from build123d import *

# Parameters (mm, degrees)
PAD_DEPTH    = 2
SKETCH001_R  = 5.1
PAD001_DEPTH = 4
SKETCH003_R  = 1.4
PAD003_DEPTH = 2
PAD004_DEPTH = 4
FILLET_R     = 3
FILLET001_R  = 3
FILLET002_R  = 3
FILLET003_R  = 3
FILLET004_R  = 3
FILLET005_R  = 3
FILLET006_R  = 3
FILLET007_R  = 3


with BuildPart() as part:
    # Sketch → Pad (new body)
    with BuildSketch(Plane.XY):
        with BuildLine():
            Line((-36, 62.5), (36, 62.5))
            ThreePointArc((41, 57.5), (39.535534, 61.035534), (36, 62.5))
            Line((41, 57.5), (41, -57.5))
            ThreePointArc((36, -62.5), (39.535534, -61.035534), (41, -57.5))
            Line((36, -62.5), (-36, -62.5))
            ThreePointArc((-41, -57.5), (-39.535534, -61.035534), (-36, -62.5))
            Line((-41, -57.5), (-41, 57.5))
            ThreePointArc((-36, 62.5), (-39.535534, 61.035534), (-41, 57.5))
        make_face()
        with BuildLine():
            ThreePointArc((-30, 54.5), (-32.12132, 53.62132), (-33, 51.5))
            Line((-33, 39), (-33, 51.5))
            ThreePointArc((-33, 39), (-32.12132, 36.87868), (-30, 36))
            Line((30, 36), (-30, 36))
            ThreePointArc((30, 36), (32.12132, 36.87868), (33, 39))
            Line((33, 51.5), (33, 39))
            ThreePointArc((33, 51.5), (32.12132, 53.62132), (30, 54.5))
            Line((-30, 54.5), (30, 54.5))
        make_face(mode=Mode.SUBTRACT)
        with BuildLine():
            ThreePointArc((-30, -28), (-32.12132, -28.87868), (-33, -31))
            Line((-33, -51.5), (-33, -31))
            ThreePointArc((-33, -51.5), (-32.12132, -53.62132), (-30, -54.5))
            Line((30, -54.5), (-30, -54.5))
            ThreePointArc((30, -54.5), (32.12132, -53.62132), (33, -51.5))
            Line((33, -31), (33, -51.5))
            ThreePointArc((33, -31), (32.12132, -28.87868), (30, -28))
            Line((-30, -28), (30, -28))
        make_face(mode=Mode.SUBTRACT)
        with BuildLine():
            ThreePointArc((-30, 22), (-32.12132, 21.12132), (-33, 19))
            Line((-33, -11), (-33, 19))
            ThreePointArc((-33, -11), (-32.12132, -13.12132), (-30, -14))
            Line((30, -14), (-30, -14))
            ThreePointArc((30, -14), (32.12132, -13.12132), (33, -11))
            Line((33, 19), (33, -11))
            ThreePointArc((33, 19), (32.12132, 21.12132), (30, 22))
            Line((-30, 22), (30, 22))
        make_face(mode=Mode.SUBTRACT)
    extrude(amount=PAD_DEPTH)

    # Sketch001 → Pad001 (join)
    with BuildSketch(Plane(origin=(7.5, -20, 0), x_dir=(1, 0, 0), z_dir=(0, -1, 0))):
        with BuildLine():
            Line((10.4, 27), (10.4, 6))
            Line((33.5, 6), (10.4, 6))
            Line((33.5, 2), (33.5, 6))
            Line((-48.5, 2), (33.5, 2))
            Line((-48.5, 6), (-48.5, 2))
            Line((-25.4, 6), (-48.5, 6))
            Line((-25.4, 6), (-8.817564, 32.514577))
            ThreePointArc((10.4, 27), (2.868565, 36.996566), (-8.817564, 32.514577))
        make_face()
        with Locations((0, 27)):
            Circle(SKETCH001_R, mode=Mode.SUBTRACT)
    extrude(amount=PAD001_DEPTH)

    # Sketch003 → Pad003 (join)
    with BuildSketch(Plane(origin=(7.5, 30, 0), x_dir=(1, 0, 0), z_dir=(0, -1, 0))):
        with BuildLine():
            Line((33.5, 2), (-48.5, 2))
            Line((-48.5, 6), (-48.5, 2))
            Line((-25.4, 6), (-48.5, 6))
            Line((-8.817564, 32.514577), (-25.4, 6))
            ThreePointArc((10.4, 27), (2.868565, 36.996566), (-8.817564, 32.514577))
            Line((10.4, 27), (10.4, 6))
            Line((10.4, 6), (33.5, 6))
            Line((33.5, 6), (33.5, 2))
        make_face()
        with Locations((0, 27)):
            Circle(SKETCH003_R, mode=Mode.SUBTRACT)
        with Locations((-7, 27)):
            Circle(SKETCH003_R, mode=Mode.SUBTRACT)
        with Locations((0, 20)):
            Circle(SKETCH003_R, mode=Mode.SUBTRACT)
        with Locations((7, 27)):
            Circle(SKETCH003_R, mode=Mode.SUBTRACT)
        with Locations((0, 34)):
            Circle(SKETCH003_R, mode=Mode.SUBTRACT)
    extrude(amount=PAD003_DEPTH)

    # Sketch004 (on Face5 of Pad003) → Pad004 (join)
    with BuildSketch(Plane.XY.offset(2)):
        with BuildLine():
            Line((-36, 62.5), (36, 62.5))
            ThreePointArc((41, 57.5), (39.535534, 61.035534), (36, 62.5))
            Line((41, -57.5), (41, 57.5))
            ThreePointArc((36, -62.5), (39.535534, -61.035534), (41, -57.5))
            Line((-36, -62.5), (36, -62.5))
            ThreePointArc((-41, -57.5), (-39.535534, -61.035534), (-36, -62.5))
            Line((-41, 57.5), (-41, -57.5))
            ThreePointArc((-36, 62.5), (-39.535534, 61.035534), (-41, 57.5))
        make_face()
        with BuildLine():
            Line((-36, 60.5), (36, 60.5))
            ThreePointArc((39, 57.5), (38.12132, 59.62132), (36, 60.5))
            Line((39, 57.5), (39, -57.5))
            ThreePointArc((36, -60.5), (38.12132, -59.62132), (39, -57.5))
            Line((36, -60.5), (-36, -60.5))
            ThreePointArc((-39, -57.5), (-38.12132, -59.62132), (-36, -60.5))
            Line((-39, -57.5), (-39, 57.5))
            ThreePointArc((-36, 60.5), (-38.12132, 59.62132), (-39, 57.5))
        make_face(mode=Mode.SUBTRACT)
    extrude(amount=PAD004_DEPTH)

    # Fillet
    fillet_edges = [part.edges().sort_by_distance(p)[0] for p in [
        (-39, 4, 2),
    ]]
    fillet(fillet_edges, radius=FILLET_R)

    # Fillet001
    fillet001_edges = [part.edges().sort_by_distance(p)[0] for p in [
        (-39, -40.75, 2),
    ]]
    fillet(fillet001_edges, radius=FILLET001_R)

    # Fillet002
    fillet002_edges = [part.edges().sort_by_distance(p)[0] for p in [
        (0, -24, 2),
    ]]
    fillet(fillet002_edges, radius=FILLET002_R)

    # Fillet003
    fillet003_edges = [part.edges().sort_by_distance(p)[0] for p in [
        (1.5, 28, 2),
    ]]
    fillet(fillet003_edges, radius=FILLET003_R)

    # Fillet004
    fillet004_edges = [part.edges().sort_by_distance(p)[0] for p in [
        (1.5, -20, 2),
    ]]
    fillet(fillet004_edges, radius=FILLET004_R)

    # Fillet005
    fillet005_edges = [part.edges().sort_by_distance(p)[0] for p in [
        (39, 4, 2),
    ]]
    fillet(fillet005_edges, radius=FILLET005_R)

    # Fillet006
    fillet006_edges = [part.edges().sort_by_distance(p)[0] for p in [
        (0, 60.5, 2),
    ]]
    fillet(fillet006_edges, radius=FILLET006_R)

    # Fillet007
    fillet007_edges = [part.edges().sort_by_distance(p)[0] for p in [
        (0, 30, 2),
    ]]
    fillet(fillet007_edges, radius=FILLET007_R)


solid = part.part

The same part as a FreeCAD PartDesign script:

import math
import FreeCAD as App
import Part
import Sketcher
from FreeCAD import Vector


def edges_at(feature, points):
    """Names of the edges that pass closest to the given points."""
    edges = feature.Shape.Edges
    near = lambda p: min(range(len(edges)), key=lambda i: edges[i].distToShape(Part.Vertex(*p))[0])
    return sorted({f"Edge{near(p) + 1}" for p in points})

doc = App.newDocument("Part")
body = doc.addObject("PartDesign::Body", "Body")

sketch1 = body.newObject("Sketcher::SketchObject", "Sketch")
sketch1.AttachmentSupport = (doc.getObject("XY_Plane"), [""])
sketch1.MapMode = "FlatFace"
sketch1.addGeometry([
    Part.LineSegment(Vector(36, 62.5, 0), Vector(-36, 62.5, 0)),
    Part.ArcOfCircle(Part.Circle(Vector(-36, 57.5, 0), Vector(0, 0, 1), 5), math.radians(90), math.radians(180)),
    Part.LineSegment(Vector(-41, 57.5, 0), Vector(-41, -57.5, 0)),
    Part.ArcOfCircle(Part.Circle(Vector(-36, -57.5, 0), Vector(0, 0, 1), 5), math.radians(180), math.radians(270)),
    Part.LineSegment(Vector(-36, -62.5, 0), Vector(36, -62.5, 0)),
    Part.ArcOfCircle(Part.Circle(Vector(36, -57.5, 0), Vector(0, 0, 1), 5), math.radians(-90), math.radians(0)),
    Part.LineSegment(Vector(41, -57.5, 0), Vector(41, 57.5, 0)),
    Part.ArcOfCircle(Part.Circle(Vector(36, 57.5, 0), Vector(0, 0, 1), 5), math.radians(0), math.radians(90)),
    Part.LineSegment(Vector(-30, -28, 0), Vector(30, -28, 0)),
    Part.ArcOfCircle(Part.Circle(Vector(30, -31, 0), Vector(0, 0, 1), 3), math.radians(0), math.radians(90)),
    Part.LineSegment(Vector(33, -31, 0), Vector(33, -51.5, 0)),
    Part.ArcOfCircle(Part.Circle(Vector(30, -51.5, 0), Vector(0, 0, 1), 3), math.radians(-90), math.radians(0)),
    Part.LineSegment(Vector(30, -54.5, 0), Vector(-30, -54.5, 0)),
    Part.ArcOfCircle(Part.Circle(Vector(-30, -51.5, 0), Vector(0, 0, 1), 3), math.radians(-180), math.radians(-90)),
    Part.LineSegment(Vector(-33, -51.5, 0), Vector(-33, -31, 0)),
    Part.ArcOfCircle(Part.Circle(Vector(-30, -31, 0), Vector(0, 0, 1), 3), math.radians(90), math.radians(180)),
    Part.LineSegment(Vector(-30, 22, 0), Vector(30, 22, 0)),
    Part.ArcOfCircle(Part.Circle(Vector(30, 19, 0), Vector(0, 0, 1), 3), math.radians(0), math.radians(90)),
    Part.LineSegment(Vector(33, 19, 0), Vector(33, -11, 0)),
    Part.ArcOfCircle(Part.Circle(Vector(30, -11, 0), Vector(0, 0, 1), 3), math.radians(-90), math.radians(0)),
    Part.LineSegment(Vector(30, -14, 0), Vector(-30, -14, 0)),
    Part.ArcOfCircle(Part.Circle(Vector(-30, -11, 0), Vector(0, 0, 1), 3), math.radians(-180), math.radians(-90)),
    Part.LineSegment(Vector(-33, -11, 0), Vector(-33, 19, 0)),
    Part.ArcOfCircle(Part.Circle(Vector(-30, 19, 0), Vector(0, 0, 1), 3), math.radians(90), math.radians(180)),
    Part.LineSegment(Vector(-30, 54.5, 0), Vector(30, 54.5, 0)),
    Part.ArcOfCircle(Part.Circle(Vector(30, 51.5, 0), Vector(0, 0, 1), 3), math.radians(0), math.radians(90)),
    Part.LineSegment(Vector(33, 51.5, 0), Vector(33, 39, 0)),
    Part.ArcOfCircle(Part.Circle(Vector(30, 39, 0), Vector(0, 0, 1), 3), math.radians(-90), math.radians(0)),
    Part.LineSegment(Vector(30, 36, 0), Vector(-30, 36, 0)),
    Part.ArcOfCircle(Part.Circle(Vector(-30, 39, 0), Vector(0, 0, 1), 3), math.radians(-180), math.radians(-90)),
    Part.LineSegment(Vector(-33, 39, 0), Vector(-33, 51.5, 0)),
    Part.ArcOfCircle(Part.Circle(Vector(-30, 51.5, 0), Vector(0, 0, 1), 3), math.radians(90), math.radians(180)),
], False)
sketch1.addConstraint([
    Sketcher.Constraint("Tangent", 0, 2, 1, 1),
    Sketcher.Constraint("Tangent", 1, 2, 2, 1),
    Sketcher.Constraint("Tangent", 2, 2, 3, 1),
    Sketcher.Constraint("Tangent", 3, 2, 4, 1),
    Sketcher.Constraint("Tangent", 4, 2, 5, 1),
    Sketcher.Constraint("Tangent", 5, 2, 6, 1),
    Sketcher.Constraint("Tangent", 6, 2, 7, 1),
    Sketcher.Constraint("Tangent", 7, 2, 0, 1),
    Sketcher.Constraint("Tangent", 8, 2, 9, 2),
    Sketcher.Constraint("Tangent", 9, 1, 10, 1),
    Sketcher.Constraint("Tangent", 10, 2, 11, 2),
    Sketcher.Constraint("Tangent", 11, 1, 12, 1),
    Sketcher.Constraint("Tangent", 12, 2, 13, 2),
    Sketcher.Constraint("Tangent", 13, 1, 14, 1),
    Sketcher.Constraint("Tangent", 14, 2, 15, 2),
    Sketcher.Constraint("Tangent", 15, 1, 8, 1),
    Sketcher.Constraint("Tangent", 16, 2, 17, 2),
    Sketcher.Constraint("Tangent", 17, 1, 18, 1),
    Sketcher.Constraint("Tangent", 18, 2, 19, 2),
    Sketcher.Constraint("Tangent", 19, 1, 20, 1),
    Sketcher.Constraint("Tangent", 20, 2, 21, 2),
    Sketcher.Constraint("Tangent", 21, 1, 22, 1),
    Sketcher.Constraint("Tangent", 22, 2, 23, 2),
    Sketcher.Constraint("Tangent", 23, 1, 16, 1),
    Sketcher.Constraint("Tangent", 24, 2, 25, 2),
    Sketcher.Constraint("Tangent", 25, 1, 26, 1),
    Sketcher.Constraint("Tangent", 26, 2, 27, 2),
    Sketcher.Constraint("Tangent", 27, 1, 28, 1),
    Sketcher.Constraint("Tangent", 28, 2, 29, 2),
    Sketcher.Constraint("Tangent", 29, 1, 30, 1),
    Sketcher.Constraint("Tangent", 30, 2, 31, 2),
    Sketcher.Constraint("Tangent", 31, 1, 24, 1),
    Sketcher.Constraint("Horizontal", 0),
    Sketcher.Constraint("Vertical", 2),
    Sketcher.Constraint("Horizontal", 4),
    Sketcher.Constraint("Vertical", 6),
    Sketcher.Constraint("Horizontal", 8),
    Sketcher.Constraint("Vertical", 10),
    Sketcher.Constraint("Horizontal", 12),
    Sketcher.Constraint("Vertical", 14),
    Sketcher.Constraint("Horizontal", 16),
    Sketcher.Constraint("Vertical", 18),
    Sketcher.Constraint("Horizontal", 20),
    Sketcher.Constraint("Vertical", 22),
    Sketcher.Constraint("Horizontal", 24),
    Sketcher.Constraint("Vertical", 26),
    Sketcher.Constraint("Horizontal", 28),
    Sketcher.Constraint("Vertical", 30),
    Sketcher.Constraint("Equal", 1, 3),
    Sketcher.Constraint("Equal", 3, 5),
    Sketcher.Constraint("Equal", 5, 7),
    Sketcher.Constraint("Equal", 9, 11),
    Sketcher.Constraint("Equal", 11, 13),
    Sketcher.Constraint("Equal", 13, 15),
    Sketcher.Constraint("Equal", 15, 17),
    Sketcher.Constraint("Equal", 17, 19),
    Sketcher.Constraint("Equal", 19, 21),
    Sketcher.Constraint("Equal", 21, 23),
    Sketcher.Constraint("Equal", 23, 25),
    Sketcher.Constraint("Equal", 25, 27),
    Sketcher.Constraint("Equal", 27, 29),
    Sketcher.Constraint("Equal", 29, 31),
    Sketcher.Constraint("Symmetric", 1, 3, 5, 3, -1, 1),
    Sketcher.Constraint("Symmetric", 13, 3, 25, 3, -1, 1),
    Sketcher.Constraint("Vertical", 11, 3, 17, 3),
    Sketcher.Constraint("Vertical", 15, 3, 21, 3),
    Sketcher.Constraint("Vertical", 19, 3, 25, 3),
    Sketcher.Constraint("Vertical", 23, 3, 29, 3),
    Sketcher.Constraint("Radius", 1, 5.0),
    Sketcher.Constraint("Radius", 9, 3.000001),
    Sketcher.Constraint("DistanceX", 0, 2, 0, 1, 72.0),
    Sketcher.Constraint("DistanceX", 8, 1, 8, 2, 60.0),
    Sketcher.Constraint("DistanceY", 2, 2, 2, 1, 115.0),
    Sketcher.Constraint("DistanceY", 18, 2, 18, 1, 30.0),
    Sketcher.Constraint("DistanceY", 10, 2, 10, 1, 20.5),
    Sketcher.Constraint("DistanceY", 26, 2, 26, 1, 12.5),
    Sketcher.Constraint("DistanceY", 9, 3, -1, 1, 31.000001),
    Sketcher.Constraint("DistanceY", -1, 1, 17, 3, 18.999999),
])
pad1 = body.newObject("PartDesign::Pad", "Pad")
pad1.Profile = sketch1
pad1.Length = 2

sketch2 = body.newObject("Sketcher::SketchObject", "Sketch001")
sketch2.AttachmentSupport = (doc.getObject("XZ_Plane"), [""])
sketch2.MapMode = "FlatFace"
sketch2.AttachmentOffset = App.Placement(Vector(0, 0, 20), App.Rotation())
sketch2.addGeometry([
    Part.LineSegment(Vector(17.9, 6, 0), Vector(17.9, 27, 0)),
    Part.ArcOfCircle(Part.Circle(Vector(7.5, 27, 0), Vector(0, 0, 1), 10.4), math.radians(0), math.radians(148)),
    Part.LineSegment(Vector(-1.3, 32.5, 0), Vector(-17.9, 6, 0)),
    Part.LineSegment(Vector(-17.9, 6, 0), Vector(-41, 6, 0)),
    Part.LineSegment(Vector(-41, 6, 0), Vector(-41, 2, 0)),
    Part.LineSegment(Vector(-41, 2, 0), Vector(41, 2, 0)),
    Part.LineSegment(Vector(41, 2, 0), Vector(41, 6, 0)),
    Part.LineSegment(Vector(41, 6, 0), Vector(17.9, 6, 0)),
    Part.Circle(Vector(7.5, 27, 0), Vector(0, 0, 1), 5.1),
], False)
sketch2.addConstraint([
    Sketcher.Constraint("Tangent", 0, 2, 1, 1),
    Sketcher.Constraint("Tangent", 1, 2, 2, 1),
    Sketcher.Constraint("Coincident", 2, 2, 3, 1),
    Sketcher.Constraint("Coincident", 3, 2, 4, 1),
    Sketcher.Constraint("Coincident", 4, 2, 5, 1),
    Sketcher.Constraint("Coincident", 5, 2, 6, 1),
    Sketcher.Constraint("Coincident", 6, 2, 7, 1),
    Sketcher.Constraint("Coincident", 7, 2, 0, 1),
    Sketcher.Constraint("Vertical", 0),
    Sketcher.Constraint("Horizontal", 3),
    Sketcher.Constraint("Vertical", 4),
    Sketcher.Constraint("Horizontal", 5),
    Sketcher.Constraint("Vertical", 6),
    Sketcher.Constraint("Horizontal", 7),
    Sketcher.Constraint("Coincident", 8, 3, 1, 3),
    Sketcher.Constraint("Symmetric", 3, 2, 6, 2, -2),
    Sketcher.Constraint("Equal", 3, 7),
    Sketcher.Constraint("Diameter", 8, 10.2),
    Sketcher.Constraint("Radius", 1, 10.4),
    Sketcher.Constraint("DistanceX", 5, 1, 5, 2, 82.0),
    Sketcher.Constraint("DistanceY", 0, 1, 0, 2, 21.0),
    Sketcher.Constraint("DistanceY", 4, 2, 4, 1, 4.0),
    Sketcher.Constraint("DistanceX", 3, 2, 3, 1, 23.1),
    Sketcher.Constraint("DistanceY", -1, 1, 1, 3, 27.0),
])
pad2 = body.newObject("PartDesign::Pad", "Pad001")
pad2.Profile = sketch2
pad2.Length = 4

sketch3 = body.newObject("Sketcher::SketchObject", "Sketch002")
sketch3.AttachmentSupport = (doc.getObject("XZ_Plane"), [""])
sketch3.MapMode = "FlatFace"
sketch3.AttachmentOffset = App.Placement(Vector(0, 0, -30), App.Rotation())
sketch3.addGeometry([
    Part.LineSegment(Vector(-41, 2, 0), Vector(41, 2, 0)),
    Part.LineSegment(Vector(41, 2, 0), Vector(41, 6, 0)),
    Part.LineSegment(Vector(41, 6, 0), Vector(17.9, 6, 0)),
    Part.LineSegment(Vector(17.9, 6, 0), Vector(17.9, 27, 0)),
    Part.ArcOfCircle(Part.Circle(Vector(7.5, 27, 0), Vector(0, 0, 1), 10.4), math.radians(0), math.radians(148)),
    Part.LineSegment(Vector(-1.3, 32.5, 0), Vector(-17.9, 6, 0)),
    Part.LineSegment(Vector(-17.9, 6, 0), Vector(-41, 6, 0)),
    Part.LineSegment(Vector(-41, 6, 0), Vector(-41, 2, 0)),
    Part.Circle(Vector(7.5, 20, 0), Vector(0, 0, 1), 1.4),
    Part.Circle(Vector(14.5, 27, 0), Vector(0, 0, 1), 1.4),
    Part.Circle(Vector(7.5, 27, 0), Vector(0, 0, 1), 1.4),
    Part.Circle(Vector(0.5, 27, 0), Vector(0, 0, 1), 1.4),
    Part.Circle(Vector(7.5, 34, 0), Vector(0, 0, 1), 1.4),
], False)
sketch3.addConstraint([
    Sketcher.Constraint("Coincident", 0, 2, 1, 1),
    Sketcher.Constraint("Coincident", 1, 2, 2, 1),
    Sketcher.Constraint("Coincident", 2, 2, 3, 1),
    Sketcher.Constraint("Tangent", 3, 2, 4, 1),
    Sketcher.Constraint("Tangent", 4, 2, 5, 1),
    Sketcher.Constraint("Coincident", 5, 2, 6, 1),
    Sketcher.Constraint("Coincident", 6, 2, 7, 1),
    Sketcher.Constraint("Coincident", 7, 2, 0, 1),
    Sketcher.Constraint("Horizontal", 0),
    Sketcher.Constraint("Vertical", 1),
    Sketcher.Constraint("Horizontal", 2),
    Sketcher.Constraint("Vertical", 3),
    Sketcher.Constraint("Horizontal", 6),
    Sketcher.Constraint("Vertical", 7),
    Sketcher.Constraint("Coincident", 10, 3, 4, 3),
    Sketcher.Constraint("Equal", 8, 9),
    Sketcher.Constraint("Equal", 9, 10),
    Sketcher.Constraint("Equal", 10, 11),
    Sketcher.Constraint("Equal", 11, 12),
    Sketcher.Constraint("Symmetric", 2, 2, 5, 2, -2),
    Sketcher.Constraint("Horizontal", 4, 3, 9, 3),
    Sketcher.Constraint("Horizontal", 10, 3, 11, 3),
    Sketcher.Constraint("Vertical", 4, 3, 8, 3),
    Sketcher.Constraint("Vertical", 10, 3, 12, 3),
    Sketcher.Constraint("Equal", 2, 6),
    Sketcher.Constraint("Diameter", 8, 2.8),
    Sketcher.Constraint("Radius", 4, 10.4),
    Sketcher.Constraint("DistanceX", 0, 1, 0, 2, 82.0),
    Sketcher.Constraint("DistanceY", 1, 1, 1, 2, 4.0),
    Sketcher.Constraint("DistanceY", 3, 1, 3, 2, 21.0),
    Sketcher.Constraint("DistanceX", 2, 2, 2, 1, 23.1),
    Sketcher.Constraint("DistanceY", -1, 1, 4, 3, 27.0),
    Sketcher.Constraint("DistanceY", -1, 1, 8, 3, 20.0),
    Sketcher.Constraint("DistanceY", -1, 1, 12, 3, 34.0),
    Sketcher.Constraint("DistanceX", 4, 3, 9, 3, 7.0),
    Sketcher.Constraint("DistanceX", 11, 3, 10, 3, 7.0),
])
pad3 = body.newObject("PartDesign::Pad", "Pad002")
pad3.Profile = sketch3
pad3.Length = 2

sketch4 = body.newObject("Sketcher::SketchObject", "Sketch003")
sketch4.AttachmentSupport = (doc.getObject("XY_Plane"), [""])
sketch4.MapMode = "FlatFace"
sketch4.AttachmentOffset = App.Placement(Vector(0, 0, 2), App.Rotation())
sketch4.addGeometry([
    Part.LineSegment(Vector(36, 62.5, 0), Vector(-36, 62.5, 0)),
    Part.ArcOfCircle(Part.Circle(Vector(-36, 57.5, 0), Vector(0, 0, 1), 5), math.radians(90), math.radians(180)),
    Part.LineSegment(Vector(-41, 57.5, 0), Vector(-41, -57.5, 0)),
    Part.ArcOfCircle(Part.Circle(Vector(-36, -57.5, 0), Vector(0, 0, 1), 5), math.radians(180), math.radians(270)),
    Part.LineSegment(Vector(-36, -62.5, 0), Vector(36, -62.5, 0)),
    Part.ArcOfCircle(Part.Circle(Vector(36, -57.5, 0), Vector(0, 0, 1), 5), math.radians(-90), math.radians(0)),
    Part.LineSegment(Vector(41, -57.5, 0), Vector(41, 57.5, 0)),
    Part.ArcOfCircle(Part.Circle(Vector(36, 57.5, 0), Vector(0, 0, 1), 5), math.radians(0), math.radians(90)),
    Part.LineSegment(Vector(-36, 60.5, 0), Vector(36, 60.5, 0)),
    Part.ArcOfCircle(Part.Circle(Vector(36, 57.5, 0), Vector(0, 0, 1), 3), math.radians(0), math.radians(90)),
    Part.LineSegment(Vector(39, 57.5, 0), Vector(39, -57.5, 0)),
    Part.ArcOfCircle(Part.Circle(Vector(36, -57.5, 0), Vector(0, 0, 1), 3), math.radians(-90), math.radians(0)),
    Part.LineSegment(Vector(36, -60.5, 0), Vector(-36, -60.5, 0)),
    Part.ArcOfCircle(Part.Circle(Vector(-36, -57.5, 0), Vector(0, 0, 1), 3), math.radians(-180), math.radians(-90)),
    Part.LineSegment(Vector(-39, -57.5, 0), Vector(-39, 57.5, 0)),
    Part.ArcOfCircle(Part.Circle(Vector(-36, 57.5, 0), Vector(0, 0, 1), 3), math.radians(90), math.radians(180)),
], False)
sketch4.addConstraint([
    Sketcher.Constraint("Tangent", 0, 2, 1, 1),
    Sketcher.Constraint("Tangent", 1, 2, 2, 1),
    Sketcher.Constraint("Tangent", 2, 2, 3, 1),
    Sketcher.Constraint("Tangent", 3, 2, 4, 1),
    Sketcher.Constraint("Tangent", 4, 2, 5, 1),
    Sketcher.Constraint("Tangent", 5, 2, 6, 1),
    Sketcher.Constraint("Tangent", 6, 2, 7, 1),
    Sketcher.Constraint("Tangent", 7, 2, 0, 1),
    Sketcher.Constraint("Tangent", 8, 2, 9, 2),
    Sketcher.Constraint("Tangent", 9, 1, 10, 1),
    Sketcher.Constraint("Tangent", 10, 2, 11, 2),
    Sketcher.Constraint("Tangent", 11, 1, 12, 1),
    Sketcher.Constraint("Tangent", 12, 2, 13, 2),
    Sketcher.Constraint("Tangent", 13, 1, 14, 1),
    Sketcher.Constraint("Tangent", 14, 2, 15, 2),
    Sketcher.Constraint("Tangent", 15, 1, 8, 1),
    Sketcher.Constraint("Horizontal", 0),
    Sketcher.Constraint("Vertical", 2),
    Sketcher.Constraint("Horizontal", 4),
    Sketcher.Constraint("Vertical", 6),
    Sketcher.Constraint("Horizontal", 8),
    Sketcher.Constraint("Vertical", 10),
    Sketcher.Constraint("Horizontal", 12),
    Sketcher.Constraint("Vertical", 14),
    Sketcher.Constraint("Coincident", 9, 3, 7, 3),
    Sketcher.Constraint("Coincident", 11, 3, 5, 3),
    Sketcher.Constraint("Coincident", 13, 3, 3, 3),
    Sketcher.Constraint("Equal", 1, 3),
    Sketcher.Constraint("Equal", 3, 5),
    Sketcher.Constraint("Equal", 5, 7),
    Sketcher.Constraint("Equal", 13, 15),
    Sketcher.Constraint("Symmetric", 1, 3, 5, 3, -1, 1),
    Sketcher.Constraint("Radius", 1, 5.0),
    Sketcher.Constraint("Radius", 9, 3.000001),
    Sketcher.Constraint("DistanceX", 0, 2, 0, 1, 72.0),
    Sketcher.Constraint("DistanceY", 2, 2, 2, 1, 115.0),
])
pad4 = body.newObject("PartDesign::Pad", "Pad003")
pad4.Profile = sketch4
pad4.Length = 4
doc.recompute()

fillet = body.newObject("PartDesign::Fillet", "Fillet")
fillet.Base = (pad4, edges_at(pad4, [(-39, 4, 2)]))
fillet.Radius = 3
doc.recompute()

fillet2 = body.newObject("PartDesign::Fillet", "Fillet001")
fillet2.Base = (fillet, edges_at(fillet, [(-39, -40.75, 2)]))
fillet2.Radius = 3
doc.recompute()

fillet3 = body.newObject("PartDesign::Fillet", "Fillet002")
fillet3.Base = (fillet2, edges_at(fillet2, [(0, -24, 2)]))
fillet3.Radius = 3
doc.recompute()

fillet4 = body.newObject("PartDesign::Fillet", "Fillet003")
fillet4.Base = (fillet3, edges_at(fillet3, [(1.5, 28, 2)]))
fillet4.Radius = 3
doc.recompute()

fillet5 = body.newObject("PartDesign::Fillet", "Fillet004")
fillet5.Base = (fillet4, edges_at(fillet4, [(1.5, -20, 2)]))
fillet5.Radius = 3
doc.recompute()

fillet6 = body.newObject("PartDesign::Fillet", "Fillet005")
fillet6.Base = (fillet5, edges_at(fillet5, [(39, 4, 2)]))
fillet6.Radius = 3
doc.recompute()

fillet7 = body.newObject("PartDesign::Fillet", "Fillet006")
fillet7.Base = (fillet6, edges_at(fillet6, [(0, 60.5, 2)]))
fillet7.Radius = 3
doc.recompute()

fillet8 = body.newObject("PartDesign::Fillet", "Fillet007")
fillet8.Base = (fillet7, edges_at(fillet7, [(0, 30, 2)]))
fillet8.Radius = 3

doc.recompute()
